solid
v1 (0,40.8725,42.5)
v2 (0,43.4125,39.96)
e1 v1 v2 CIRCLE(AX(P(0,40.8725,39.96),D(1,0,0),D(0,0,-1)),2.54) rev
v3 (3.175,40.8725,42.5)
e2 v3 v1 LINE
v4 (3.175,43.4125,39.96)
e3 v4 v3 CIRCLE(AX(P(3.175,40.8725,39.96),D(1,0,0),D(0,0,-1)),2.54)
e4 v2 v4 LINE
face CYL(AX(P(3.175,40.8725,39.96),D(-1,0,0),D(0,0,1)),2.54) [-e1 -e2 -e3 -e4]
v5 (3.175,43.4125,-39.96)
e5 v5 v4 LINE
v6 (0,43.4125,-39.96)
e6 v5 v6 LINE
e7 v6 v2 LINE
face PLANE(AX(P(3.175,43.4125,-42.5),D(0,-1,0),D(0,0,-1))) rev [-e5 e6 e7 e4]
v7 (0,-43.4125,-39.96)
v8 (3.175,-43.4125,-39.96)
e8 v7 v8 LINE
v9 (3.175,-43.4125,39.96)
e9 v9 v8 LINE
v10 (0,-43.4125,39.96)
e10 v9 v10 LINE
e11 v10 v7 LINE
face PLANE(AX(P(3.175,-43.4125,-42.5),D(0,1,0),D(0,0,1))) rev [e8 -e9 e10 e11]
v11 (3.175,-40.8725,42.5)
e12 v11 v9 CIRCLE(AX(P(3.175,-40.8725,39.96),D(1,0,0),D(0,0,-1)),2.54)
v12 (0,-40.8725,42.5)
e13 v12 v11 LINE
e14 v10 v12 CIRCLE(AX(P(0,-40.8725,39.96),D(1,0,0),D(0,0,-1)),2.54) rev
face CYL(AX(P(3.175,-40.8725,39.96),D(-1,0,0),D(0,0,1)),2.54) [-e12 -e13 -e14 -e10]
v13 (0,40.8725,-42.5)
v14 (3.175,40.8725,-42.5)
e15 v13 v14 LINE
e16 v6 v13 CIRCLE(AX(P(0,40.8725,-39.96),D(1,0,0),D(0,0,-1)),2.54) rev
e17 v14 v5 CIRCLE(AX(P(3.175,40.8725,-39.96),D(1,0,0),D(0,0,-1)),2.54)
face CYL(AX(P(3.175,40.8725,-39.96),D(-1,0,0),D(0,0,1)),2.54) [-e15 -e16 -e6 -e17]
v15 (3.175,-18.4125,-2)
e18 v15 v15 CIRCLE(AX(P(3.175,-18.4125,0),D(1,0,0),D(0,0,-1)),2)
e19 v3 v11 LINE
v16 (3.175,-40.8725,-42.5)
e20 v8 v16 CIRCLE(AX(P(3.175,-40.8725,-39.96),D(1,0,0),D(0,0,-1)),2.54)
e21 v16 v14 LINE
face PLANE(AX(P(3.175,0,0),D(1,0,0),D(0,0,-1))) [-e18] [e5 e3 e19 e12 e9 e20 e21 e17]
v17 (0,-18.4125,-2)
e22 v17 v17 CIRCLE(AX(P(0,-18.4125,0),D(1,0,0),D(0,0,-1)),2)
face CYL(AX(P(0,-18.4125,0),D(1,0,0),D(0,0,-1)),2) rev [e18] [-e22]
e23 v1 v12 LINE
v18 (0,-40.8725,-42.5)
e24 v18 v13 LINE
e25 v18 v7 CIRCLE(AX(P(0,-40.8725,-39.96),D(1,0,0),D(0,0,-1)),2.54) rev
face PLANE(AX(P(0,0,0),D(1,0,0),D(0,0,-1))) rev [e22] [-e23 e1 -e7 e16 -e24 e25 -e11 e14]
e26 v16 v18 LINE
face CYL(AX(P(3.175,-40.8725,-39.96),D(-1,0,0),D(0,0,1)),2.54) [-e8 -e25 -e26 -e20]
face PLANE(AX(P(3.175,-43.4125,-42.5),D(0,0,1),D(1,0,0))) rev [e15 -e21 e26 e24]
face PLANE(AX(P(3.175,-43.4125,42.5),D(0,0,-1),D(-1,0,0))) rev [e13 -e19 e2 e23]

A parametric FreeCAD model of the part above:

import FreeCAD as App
import Part
import Sketcher
from FreeCAD import Vector
Q = App.Units.Quantity


def edges_at(feature, points):
    """Names of the edges that pass closest to the given points."""
    edges = feature.Shape.Edges
    near = lambda p: min(range(len(edges)), key=lambda i: edges[i].distToShape(Part.Vertex(*p))[0])
    return sorted({f"Edge{near(p) + 1}" for p in points})

doc = App.newDocument("Part")
params = doc.addObject("Spreadsheet::Sheet", "Params")
for row, (alias, value) in enumerate([
    ("sketch1_height", "85 mm"),
    ("pad1_length", "3.175 mm"),
    ("sketch2_diameter", "4 mm"),
    ("fillet_radius", "2.54 mm"),
], start=1):
    params.set(f"A{row}", alias)
    params.set(f"B{row}", "=" + value)
    params.setAlias(f"B{row}", alias)

body = doc.addObject("PartDesign::Body", "Body")

# Sketch on YZ plane
sketch1 = body.newObject("Sketcher::SketchObject", "Sketch")
sketch1.AttachmentSupport = (doc.getObject("YZ_Plane"), [""])
sketch1.MapMode = "FlatFace"
sketch1.addGeometry([
    Part.LineSegment(Vector(43, 42, 0), Vector(-43, 42, 0)),
    Part.LineSegment(Vector(-43, 42, 0), Vector(-43, -42, 0)),
    Part.LineSegment(Vector(-43, -42, 0), Vector(43, -42, 0)),
    Part.LineSegment(Vector(43, -42, 0), Vector(43, 42, 0)),
], False)
sketch1.addConstraint([
    Sketcher.Constraint("Coincident", 0, 2, 1, 1),
    Sketcher.Constraint("Coincident", 1, 2, 2, 1),
    Sketcher.Constraint("Coincident", 2, 2, 3, 1),
    Sketcher.Constraint("Coincident", 3, 2, 0, 1),
    Sketcher.Constraint("Horizontal", 0),
    Sketcher.Constraint("Vertical", 1),
    Sketcher.Constraint("Horizontal", 2),
    Sketcher.Constraint("Vertical", 3),
    Sketcher.Constraint("Symmetric", 0, 2, 2, 2, -1, 1),
    Sketcher.Constraint("DistanceY", 1, 2, 1, 1, Q("85 mm")),
    Sketcher.Constraint("DistanceX", 0, 2, 0, 1, Q("86.825 mm")),
])
sketch1.setExpression("Constraints[9]", "Params.sketch1_height")
pad1 = body.newObject("PartDesign::Pad", "Pad")
pad1.Profile = sketch1
pad1.setExpression("Length", "Params.pad1_length")

# Sketch on YZ plane
sketch2 = body.newObject("Sketcher::SketchObject", "Sketch001")
sketch2.AttachmentSupport = (doc.getObject("YZ_Plane"), [""])
sketch2.MapMode = "FlatFace"
sketch2.AttachmentOffset = App.Placement(Vector(0, 0, 3.175), App.Rotation())
sketch2.addGeometry(Part.Circle(Vector(-18.4, 0, 0), Vector(0, 0, 1), 2), False)
sketch2.addConstraint([
    Sketcher.Constraint("PointOnObject", 0, 3, -1),
    Sketcher.Constraint("Diameter", 0, Q("4 mm")),
    Sketcher.Constraint("DistanceX", 0, 3, -1, 1, Q("18.4125 mm")),
])
sketch2.setExpression("Constraints[1]", "Params.sketch2_diameter")
pocket1 = body.newObject("PartDesign::Pocket", "Pocket")
pocket1.Profile = sketch2
pocket1.Type = "ThroughAll"
doc.recompute()

fillet = body.newObject("PartDesign::Fillet", "Fillet")
fillet.Base = (pocket1, edges_at(pocket1, [
    (1.587, 43.413, 42.5),
    (1.587, 43.413, -42.5),
    (1.587, -43.413, -42.5),
    (1.587, -43.413, 42.5),
]))
fillet.setExpression("Radius", "Params.fillet_radius")

doc.recompute()
